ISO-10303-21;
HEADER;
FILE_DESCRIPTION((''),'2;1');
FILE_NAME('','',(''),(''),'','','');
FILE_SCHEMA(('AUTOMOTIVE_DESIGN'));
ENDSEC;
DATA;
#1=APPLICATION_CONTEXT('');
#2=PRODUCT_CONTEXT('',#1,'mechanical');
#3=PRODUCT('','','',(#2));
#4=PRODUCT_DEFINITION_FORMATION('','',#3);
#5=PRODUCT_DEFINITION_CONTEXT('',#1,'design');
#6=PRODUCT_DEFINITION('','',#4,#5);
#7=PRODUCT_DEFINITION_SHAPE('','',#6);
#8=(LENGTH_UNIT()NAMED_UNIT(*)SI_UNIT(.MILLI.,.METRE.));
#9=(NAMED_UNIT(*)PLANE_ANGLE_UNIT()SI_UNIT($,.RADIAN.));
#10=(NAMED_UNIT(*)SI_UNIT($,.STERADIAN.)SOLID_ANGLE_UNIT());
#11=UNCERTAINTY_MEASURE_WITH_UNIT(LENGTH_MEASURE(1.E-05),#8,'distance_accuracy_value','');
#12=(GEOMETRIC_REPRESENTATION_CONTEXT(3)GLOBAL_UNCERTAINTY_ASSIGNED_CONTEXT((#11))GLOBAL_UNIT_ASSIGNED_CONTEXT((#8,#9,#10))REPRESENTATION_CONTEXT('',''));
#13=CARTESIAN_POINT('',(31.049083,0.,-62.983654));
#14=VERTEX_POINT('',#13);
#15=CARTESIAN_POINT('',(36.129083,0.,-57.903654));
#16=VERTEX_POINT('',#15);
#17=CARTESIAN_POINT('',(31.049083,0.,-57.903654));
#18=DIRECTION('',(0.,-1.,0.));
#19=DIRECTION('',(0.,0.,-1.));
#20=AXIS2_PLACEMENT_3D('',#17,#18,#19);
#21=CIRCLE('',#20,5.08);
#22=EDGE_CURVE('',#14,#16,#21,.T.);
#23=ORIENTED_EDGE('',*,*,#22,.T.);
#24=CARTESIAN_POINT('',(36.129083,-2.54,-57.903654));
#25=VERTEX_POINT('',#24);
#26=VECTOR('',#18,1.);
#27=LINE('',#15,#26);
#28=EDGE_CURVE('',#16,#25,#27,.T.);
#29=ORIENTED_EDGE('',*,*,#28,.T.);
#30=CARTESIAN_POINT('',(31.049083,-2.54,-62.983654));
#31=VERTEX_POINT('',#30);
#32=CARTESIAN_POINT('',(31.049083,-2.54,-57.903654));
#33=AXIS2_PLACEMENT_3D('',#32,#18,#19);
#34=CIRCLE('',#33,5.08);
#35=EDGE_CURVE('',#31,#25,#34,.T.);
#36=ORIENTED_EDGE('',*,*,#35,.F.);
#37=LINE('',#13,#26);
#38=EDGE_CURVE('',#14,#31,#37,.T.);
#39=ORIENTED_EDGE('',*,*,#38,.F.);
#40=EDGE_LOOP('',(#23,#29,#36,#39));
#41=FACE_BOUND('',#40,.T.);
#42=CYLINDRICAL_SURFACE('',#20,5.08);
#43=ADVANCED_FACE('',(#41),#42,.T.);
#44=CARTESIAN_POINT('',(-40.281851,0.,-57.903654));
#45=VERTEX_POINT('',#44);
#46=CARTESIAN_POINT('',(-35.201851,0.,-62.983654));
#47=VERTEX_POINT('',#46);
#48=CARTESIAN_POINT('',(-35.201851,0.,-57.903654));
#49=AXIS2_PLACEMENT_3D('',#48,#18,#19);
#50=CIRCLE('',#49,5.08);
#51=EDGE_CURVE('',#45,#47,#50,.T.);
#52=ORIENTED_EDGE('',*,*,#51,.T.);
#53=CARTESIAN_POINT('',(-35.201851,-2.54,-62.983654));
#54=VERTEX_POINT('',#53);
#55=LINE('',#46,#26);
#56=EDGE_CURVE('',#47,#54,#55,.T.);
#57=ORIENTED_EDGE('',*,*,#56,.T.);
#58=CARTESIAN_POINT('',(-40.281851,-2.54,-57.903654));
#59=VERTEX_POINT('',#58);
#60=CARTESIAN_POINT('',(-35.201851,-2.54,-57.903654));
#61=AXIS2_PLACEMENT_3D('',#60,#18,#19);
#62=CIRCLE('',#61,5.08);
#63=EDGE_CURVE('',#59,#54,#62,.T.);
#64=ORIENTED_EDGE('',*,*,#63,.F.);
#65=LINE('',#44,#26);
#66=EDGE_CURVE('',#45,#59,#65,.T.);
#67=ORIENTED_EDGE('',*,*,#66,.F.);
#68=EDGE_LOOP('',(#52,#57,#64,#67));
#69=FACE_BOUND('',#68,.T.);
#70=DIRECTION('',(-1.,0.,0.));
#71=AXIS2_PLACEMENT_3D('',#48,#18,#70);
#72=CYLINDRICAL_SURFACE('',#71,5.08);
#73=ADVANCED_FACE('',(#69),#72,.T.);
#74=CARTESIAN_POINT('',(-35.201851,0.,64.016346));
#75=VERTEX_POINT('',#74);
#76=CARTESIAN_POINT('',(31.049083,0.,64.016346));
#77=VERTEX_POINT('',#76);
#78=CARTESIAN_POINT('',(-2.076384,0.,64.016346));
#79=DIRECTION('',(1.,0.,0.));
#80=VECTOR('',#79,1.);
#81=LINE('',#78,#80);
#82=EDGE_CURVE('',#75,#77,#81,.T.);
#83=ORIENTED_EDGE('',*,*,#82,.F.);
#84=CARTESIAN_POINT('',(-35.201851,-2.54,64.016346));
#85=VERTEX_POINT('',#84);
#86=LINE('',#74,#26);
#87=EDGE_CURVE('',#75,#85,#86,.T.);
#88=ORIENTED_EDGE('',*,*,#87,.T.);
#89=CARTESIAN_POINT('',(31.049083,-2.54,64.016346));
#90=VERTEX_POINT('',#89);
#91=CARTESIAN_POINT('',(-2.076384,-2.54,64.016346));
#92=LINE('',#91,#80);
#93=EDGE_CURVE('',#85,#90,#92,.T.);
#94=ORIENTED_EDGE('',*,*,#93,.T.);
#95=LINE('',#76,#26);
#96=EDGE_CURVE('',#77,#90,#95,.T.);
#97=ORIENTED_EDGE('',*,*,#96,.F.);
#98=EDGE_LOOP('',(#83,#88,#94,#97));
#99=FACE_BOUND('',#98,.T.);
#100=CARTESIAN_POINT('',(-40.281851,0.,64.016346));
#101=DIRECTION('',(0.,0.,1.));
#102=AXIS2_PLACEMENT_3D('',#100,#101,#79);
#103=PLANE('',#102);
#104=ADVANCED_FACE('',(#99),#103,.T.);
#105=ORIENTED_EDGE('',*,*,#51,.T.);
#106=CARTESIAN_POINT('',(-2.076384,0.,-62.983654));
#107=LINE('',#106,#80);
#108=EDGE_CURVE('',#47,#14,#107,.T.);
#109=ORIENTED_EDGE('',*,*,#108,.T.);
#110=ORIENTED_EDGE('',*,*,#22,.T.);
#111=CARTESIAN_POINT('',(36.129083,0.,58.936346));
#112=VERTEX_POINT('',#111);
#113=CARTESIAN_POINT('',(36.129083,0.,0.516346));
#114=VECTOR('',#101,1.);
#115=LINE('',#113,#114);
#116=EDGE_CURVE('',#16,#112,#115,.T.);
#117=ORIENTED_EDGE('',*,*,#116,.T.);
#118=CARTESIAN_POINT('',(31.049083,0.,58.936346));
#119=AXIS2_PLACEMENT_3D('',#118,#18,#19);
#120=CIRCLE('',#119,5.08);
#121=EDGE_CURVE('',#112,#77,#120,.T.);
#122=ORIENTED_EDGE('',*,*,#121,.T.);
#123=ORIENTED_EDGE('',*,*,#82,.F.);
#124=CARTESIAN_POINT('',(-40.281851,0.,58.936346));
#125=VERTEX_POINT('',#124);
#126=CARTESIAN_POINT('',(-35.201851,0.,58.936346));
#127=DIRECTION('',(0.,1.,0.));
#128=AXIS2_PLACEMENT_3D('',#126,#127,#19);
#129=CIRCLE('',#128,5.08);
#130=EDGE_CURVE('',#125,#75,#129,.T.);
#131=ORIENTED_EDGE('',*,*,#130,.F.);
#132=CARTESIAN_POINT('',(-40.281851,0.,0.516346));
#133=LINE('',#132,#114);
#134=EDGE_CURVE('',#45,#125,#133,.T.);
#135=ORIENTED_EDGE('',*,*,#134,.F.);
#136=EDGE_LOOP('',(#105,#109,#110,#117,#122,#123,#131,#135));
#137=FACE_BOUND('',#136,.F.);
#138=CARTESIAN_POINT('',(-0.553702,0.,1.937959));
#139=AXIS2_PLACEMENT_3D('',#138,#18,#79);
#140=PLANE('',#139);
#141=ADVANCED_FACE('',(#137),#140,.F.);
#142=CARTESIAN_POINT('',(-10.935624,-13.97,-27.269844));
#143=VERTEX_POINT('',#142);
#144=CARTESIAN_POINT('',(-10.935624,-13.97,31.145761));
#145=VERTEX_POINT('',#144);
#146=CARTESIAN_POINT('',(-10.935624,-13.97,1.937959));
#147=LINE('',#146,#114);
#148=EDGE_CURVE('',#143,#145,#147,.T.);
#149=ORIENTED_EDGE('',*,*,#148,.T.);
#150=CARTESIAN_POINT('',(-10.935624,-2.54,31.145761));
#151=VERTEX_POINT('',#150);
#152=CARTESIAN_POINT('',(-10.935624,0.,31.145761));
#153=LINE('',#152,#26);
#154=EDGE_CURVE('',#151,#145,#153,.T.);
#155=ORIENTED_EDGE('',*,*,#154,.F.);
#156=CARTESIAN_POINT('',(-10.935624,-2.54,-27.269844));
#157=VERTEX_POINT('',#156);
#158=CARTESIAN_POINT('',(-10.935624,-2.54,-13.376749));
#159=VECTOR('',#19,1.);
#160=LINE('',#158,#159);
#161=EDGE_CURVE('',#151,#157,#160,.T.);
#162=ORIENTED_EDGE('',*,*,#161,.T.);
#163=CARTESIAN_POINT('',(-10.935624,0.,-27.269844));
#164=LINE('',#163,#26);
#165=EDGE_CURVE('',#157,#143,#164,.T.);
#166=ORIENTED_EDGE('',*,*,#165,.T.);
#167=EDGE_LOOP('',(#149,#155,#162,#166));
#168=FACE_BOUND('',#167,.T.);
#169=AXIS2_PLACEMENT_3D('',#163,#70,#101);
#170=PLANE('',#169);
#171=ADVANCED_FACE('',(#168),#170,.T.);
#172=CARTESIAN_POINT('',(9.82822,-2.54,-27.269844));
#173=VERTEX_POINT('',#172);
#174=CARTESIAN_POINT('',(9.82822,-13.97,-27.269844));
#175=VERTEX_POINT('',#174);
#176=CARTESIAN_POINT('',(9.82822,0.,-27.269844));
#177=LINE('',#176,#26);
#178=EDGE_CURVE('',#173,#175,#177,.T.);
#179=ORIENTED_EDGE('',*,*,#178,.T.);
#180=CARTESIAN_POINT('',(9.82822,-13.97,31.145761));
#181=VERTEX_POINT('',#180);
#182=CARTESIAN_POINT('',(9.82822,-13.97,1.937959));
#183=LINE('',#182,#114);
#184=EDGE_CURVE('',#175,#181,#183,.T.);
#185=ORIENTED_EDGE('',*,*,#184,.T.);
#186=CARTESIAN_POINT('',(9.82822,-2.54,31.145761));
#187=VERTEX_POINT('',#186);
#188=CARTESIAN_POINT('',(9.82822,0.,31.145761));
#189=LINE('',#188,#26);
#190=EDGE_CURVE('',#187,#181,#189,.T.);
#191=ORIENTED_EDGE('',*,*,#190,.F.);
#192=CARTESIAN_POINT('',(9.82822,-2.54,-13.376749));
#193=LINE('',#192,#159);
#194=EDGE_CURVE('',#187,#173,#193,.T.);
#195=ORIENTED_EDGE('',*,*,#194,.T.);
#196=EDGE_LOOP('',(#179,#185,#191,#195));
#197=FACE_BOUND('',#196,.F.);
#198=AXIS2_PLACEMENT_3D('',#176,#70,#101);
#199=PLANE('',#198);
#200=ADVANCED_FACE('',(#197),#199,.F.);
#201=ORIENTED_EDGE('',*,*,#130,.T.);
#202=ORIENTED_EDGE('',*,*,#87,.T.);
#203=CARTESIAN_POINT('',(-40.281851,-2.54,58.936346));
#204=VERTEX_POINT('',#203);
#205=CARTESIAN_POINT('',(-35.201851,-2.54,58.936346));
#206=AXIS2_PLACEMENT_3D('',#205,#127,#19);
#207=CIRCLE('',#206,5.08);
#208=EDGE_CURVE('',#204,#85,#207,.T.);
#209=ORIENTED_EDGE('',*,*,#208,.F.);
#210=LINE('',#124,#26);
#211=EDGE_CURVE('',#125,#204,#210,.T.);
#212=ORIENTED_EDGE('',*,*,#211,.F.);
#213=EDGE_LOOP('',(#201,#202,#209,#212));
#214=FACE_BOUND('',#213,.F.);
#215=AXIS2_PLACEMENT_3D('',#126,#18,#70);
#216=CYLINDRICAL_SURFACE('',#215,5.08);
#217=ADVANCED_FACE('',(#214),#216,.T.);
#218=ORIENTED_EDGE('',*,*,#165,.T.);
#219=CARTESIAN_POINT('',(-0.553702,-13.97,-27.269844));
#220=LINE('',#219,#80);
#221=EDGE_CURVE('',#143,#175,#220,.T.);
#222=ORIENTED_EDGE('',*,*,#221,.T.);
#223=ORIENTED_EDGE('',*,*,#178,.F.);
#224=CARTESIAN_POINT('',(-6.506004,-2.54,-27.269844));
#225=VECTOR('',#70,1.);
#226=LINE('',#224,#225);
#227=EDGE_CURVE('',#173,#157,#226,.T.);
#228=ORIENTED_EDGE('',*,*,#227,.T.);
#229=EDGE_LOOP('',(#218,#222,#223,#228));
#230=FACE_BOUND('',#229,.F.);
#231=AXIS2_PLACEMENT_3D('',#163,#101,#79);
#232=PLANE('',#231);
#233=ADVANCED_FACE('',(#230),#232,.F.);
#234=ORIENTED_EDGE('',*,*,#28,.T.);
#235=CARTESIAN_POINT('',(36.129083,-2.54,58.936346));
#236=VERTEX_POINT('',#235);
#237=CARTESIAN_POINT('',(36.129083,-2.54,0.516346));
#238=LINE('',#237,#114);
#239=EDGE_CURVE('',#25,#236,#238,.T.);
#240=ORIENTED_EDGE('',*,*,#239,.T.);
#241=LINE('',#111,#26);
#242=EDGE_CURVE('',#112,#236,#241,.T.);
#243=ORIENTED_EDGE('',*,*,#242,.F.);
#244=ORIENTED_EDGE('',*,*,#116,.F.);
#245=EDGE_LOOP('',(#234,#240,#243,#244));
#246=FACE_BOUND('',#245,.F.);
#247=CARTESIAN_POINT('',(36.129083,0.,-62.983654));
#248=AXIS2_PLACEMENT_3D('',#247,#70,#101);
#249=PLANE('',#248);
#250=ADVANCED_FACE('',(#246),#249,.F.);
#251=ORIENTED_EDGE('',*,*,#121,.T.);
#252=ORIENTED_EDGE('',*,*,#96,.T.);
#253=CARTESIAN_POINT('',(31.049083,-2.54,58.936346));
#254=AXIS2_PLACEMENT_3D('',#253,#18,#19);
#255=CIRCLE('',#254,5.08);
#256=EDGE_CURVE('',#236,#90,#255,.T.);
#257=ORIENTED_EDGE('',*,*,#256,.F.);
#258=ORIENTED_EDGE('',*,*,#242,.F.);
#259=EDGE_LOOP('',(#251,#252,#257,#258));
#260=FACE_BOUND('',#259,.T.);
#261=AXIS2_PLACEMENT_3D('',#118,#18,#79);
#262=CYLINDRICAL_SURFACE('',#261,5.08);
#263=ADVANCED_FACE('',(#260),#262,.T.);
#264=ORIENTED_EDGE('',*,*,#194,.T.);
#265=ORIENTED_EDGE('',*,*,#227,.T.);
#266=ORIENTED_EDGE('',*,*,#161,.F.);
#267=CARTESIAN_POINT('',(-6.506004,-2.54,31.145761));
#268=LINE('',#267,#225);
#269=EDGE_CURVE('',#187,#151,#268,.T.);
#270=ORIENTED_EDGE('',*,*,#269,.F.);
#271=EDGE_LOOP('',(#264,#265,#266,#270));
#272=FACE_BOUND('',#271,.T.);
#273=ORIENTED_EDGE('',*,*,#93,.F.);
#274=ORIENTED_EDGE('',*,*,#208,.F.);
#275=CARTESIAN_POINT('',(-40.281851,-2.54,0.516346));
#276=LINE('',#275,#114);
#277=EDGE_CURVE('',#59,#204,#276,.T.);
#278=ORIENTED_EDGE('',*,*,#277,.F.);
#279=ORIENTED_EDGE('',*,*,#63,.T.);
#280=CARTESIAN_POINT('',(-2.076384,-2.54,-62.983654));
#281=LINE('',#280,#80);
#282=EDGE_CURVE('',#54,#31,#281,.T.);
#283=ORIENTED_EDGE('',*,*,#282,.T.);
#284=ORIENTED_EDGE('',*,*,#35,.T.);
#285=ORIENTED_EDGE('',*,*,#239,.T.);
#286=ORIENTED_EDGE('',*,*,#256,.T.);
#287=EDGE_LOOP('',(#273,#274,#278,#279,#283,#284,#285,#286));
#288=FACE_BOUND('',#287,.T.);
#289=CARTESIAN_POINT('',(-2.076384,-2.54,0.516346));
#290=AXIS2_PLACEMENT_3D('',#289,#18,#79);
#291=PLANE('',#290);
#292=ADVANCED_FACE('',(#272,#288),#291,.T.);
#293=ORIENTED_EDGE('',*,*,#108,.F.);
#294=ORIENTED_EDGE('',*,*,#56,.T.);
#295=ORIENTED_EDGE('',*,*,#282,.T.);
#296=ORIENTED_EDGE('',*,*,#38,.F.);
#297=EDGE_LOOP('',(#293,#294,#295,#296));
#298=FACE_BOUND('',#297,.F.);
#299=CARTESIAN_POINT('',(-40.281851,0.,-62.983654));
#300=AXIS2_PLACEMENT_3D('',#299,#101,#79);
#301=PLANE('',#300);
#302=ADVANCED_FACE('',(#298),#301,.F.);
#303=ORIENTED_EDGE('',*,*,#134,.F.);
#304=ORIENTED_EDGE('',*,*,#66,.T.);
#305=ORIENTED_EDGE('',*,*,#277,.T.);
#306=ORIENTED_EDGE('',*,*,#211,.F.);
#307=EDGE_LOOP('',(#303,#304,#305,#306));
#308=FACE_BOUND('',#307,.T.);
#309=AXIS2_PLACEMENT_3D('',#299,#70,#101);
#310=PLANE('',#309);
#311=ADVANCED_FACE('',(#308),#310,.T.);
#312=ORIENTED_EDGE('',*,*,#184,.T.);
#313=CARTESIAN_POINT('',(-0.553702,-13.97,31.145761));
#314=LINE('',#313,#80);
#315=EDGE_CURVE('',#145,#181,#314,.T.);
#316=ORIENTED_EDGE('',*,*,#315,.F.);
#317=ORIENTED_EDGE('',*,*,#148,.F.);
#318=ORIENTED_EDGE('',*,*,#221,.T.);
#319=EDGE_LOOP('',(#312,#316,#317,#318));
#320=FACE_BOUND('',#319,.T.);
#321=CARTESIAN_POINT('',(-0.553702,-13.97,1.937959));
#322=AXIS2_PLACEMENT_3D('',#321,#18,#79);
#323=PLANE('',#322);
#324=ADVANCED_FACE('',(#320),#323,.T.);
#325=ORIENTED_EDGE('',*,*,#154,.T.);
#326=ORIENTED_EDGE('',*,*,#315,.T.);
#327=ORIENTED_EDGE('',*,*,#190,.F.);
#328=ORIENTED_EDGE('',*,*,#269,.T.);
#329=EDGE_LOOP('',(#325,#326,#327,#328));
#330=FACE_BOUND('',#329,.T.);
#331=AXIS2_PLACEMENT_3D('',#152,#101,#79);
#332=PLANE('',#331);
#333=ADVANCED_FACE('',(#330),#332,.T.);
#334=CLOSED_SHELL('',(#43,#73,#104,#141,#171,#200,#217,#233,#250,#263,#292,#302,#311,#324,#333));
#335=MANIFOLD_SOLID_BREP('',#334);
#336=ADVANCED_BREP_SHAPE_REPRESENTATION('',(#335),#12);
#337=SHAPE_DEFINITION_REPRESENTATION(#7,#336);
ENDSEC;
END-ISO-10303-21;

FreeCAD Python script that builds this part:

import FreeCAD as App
import Part
import Sketcher
Q = App.Units.Quantity


def edges_at(feature, points):
    """Names of the edges that pass closest to the given points."""
    edges = feature.Shape.Edges
    near = lambda p: min(range(len(edges)), key=lambda i: edges[i].distToShape(Part.Vertex(*p))[0])
    return sorted({f"Edge{near(p) + 1}" for p in points})


def add_polygon(sketch, points):
    """Adds a closed chain of lines whose ends are joined by coincident constraints."""
    first, n = sketch.GeometryCount, len(points)
    for a, b in zip(points, points[1:] + points[:1]):
        sketch.addGeometry(Part.LineSegment(App.Vector(*a, 0), App.Vector(*b, 0)), False)
    for i in range(n):
        sketch.addConstraint(Sketcher.Constraint("Coincident", first + i, 2, first + (i + 1) % n, 1))

doc = App.newDocument("Part")
body = doc.addObject("PartDesign::Body", "Body")

sketch1 = body.newObject("Sketcher::SketchObject", "Sketch")
sketch1.AttachmentSupport = (doc.getObject("XZ_Plane"), [""])
sketch1.MapMode = "FlatFace"
add_polygon(sketch1, [(-40, 64), (-40, -63), (36, -63), (36, 64)])
sketch1.addConstraint([
    Sketcher.Constraint("Vertical", 0),
    Sketcher.Constraint("Horizontal", 1),
    Sketcher.Constraint("Vertical", 2),
    Sketcher.Constraint("Horizontal", 3),
    Sketcher.Constraint("DistanceY", 0, 2, 0, 1, Q("5 in")),
    Sketcher.Constraint("DistanceX", 1, 1, 1, 2, Q("76.410934 mm")),
    Sketcher.Constraint("DistanceX", 0, 2, -1, 1, Q("40.281851 mm")),
    Sketcher.Constraint("DistanceY", 0, 2, -1, 1, Q("62.983654 mm")),
])
pad1 = body.newObject("PartDesign::Pad", "Pad")
pad1.Profile = sketch1
pad1.Length = Q("0.1 in")
doc.recompute()

fillet = body.newObject("PartDesign::Fillet", "Fillet")
fillet.Base = (pad1, edges_at(pad1, [
    (-40.282, -1.27, 64.016),
    (36.129, -1.27, 64.016),
    (36.129, -1.27, -62.984),
    (-40.282, -1.27, -62.984),
]))
fillet.Radius = Q("0.2 in")

sketch2 = body.newObject("Sketcher::SketchObject", "Sketch001")
sketch2.AttachmentSupport = (doc.getObject("XZ_Plane"), [""])
sketch2.MapMode = "FlatFace"
add_polygon(sketch2, [(-11, 31), (-11, -27), (10, -27), (10, 31)])
sketch2.addConstraint([
    Sketcher.Constraint("Vertical", 0),
    Sketcher.Constraint("Horizontal", 1),
    Sketcher.Constraint("Vertical", 2),
    Sketcher.Constraint("Horizontal", 3),
    Sketcher.Constraint("DistanceX", 1, 1, 1, 2, Q("20.763844 mm")),
    Sketcher.Constraint("DistanceY", 0, 2, 0, 1, Q("58.415605 mm")),
    Sketcher.Constraint("DistanceX", -1, 1, 1, 2, Q("9.82822 mm")),
    Sketcher.Constraint("DistanceY", -1, 1, 2, 2, Q("31.145761 mm")),
])
pad2 = body.newObject("PartDesign::Pad", "Pad001")
pad2.Profile = sketch2
pad2.Length = Q("0.55 in")

doc.recompute()
